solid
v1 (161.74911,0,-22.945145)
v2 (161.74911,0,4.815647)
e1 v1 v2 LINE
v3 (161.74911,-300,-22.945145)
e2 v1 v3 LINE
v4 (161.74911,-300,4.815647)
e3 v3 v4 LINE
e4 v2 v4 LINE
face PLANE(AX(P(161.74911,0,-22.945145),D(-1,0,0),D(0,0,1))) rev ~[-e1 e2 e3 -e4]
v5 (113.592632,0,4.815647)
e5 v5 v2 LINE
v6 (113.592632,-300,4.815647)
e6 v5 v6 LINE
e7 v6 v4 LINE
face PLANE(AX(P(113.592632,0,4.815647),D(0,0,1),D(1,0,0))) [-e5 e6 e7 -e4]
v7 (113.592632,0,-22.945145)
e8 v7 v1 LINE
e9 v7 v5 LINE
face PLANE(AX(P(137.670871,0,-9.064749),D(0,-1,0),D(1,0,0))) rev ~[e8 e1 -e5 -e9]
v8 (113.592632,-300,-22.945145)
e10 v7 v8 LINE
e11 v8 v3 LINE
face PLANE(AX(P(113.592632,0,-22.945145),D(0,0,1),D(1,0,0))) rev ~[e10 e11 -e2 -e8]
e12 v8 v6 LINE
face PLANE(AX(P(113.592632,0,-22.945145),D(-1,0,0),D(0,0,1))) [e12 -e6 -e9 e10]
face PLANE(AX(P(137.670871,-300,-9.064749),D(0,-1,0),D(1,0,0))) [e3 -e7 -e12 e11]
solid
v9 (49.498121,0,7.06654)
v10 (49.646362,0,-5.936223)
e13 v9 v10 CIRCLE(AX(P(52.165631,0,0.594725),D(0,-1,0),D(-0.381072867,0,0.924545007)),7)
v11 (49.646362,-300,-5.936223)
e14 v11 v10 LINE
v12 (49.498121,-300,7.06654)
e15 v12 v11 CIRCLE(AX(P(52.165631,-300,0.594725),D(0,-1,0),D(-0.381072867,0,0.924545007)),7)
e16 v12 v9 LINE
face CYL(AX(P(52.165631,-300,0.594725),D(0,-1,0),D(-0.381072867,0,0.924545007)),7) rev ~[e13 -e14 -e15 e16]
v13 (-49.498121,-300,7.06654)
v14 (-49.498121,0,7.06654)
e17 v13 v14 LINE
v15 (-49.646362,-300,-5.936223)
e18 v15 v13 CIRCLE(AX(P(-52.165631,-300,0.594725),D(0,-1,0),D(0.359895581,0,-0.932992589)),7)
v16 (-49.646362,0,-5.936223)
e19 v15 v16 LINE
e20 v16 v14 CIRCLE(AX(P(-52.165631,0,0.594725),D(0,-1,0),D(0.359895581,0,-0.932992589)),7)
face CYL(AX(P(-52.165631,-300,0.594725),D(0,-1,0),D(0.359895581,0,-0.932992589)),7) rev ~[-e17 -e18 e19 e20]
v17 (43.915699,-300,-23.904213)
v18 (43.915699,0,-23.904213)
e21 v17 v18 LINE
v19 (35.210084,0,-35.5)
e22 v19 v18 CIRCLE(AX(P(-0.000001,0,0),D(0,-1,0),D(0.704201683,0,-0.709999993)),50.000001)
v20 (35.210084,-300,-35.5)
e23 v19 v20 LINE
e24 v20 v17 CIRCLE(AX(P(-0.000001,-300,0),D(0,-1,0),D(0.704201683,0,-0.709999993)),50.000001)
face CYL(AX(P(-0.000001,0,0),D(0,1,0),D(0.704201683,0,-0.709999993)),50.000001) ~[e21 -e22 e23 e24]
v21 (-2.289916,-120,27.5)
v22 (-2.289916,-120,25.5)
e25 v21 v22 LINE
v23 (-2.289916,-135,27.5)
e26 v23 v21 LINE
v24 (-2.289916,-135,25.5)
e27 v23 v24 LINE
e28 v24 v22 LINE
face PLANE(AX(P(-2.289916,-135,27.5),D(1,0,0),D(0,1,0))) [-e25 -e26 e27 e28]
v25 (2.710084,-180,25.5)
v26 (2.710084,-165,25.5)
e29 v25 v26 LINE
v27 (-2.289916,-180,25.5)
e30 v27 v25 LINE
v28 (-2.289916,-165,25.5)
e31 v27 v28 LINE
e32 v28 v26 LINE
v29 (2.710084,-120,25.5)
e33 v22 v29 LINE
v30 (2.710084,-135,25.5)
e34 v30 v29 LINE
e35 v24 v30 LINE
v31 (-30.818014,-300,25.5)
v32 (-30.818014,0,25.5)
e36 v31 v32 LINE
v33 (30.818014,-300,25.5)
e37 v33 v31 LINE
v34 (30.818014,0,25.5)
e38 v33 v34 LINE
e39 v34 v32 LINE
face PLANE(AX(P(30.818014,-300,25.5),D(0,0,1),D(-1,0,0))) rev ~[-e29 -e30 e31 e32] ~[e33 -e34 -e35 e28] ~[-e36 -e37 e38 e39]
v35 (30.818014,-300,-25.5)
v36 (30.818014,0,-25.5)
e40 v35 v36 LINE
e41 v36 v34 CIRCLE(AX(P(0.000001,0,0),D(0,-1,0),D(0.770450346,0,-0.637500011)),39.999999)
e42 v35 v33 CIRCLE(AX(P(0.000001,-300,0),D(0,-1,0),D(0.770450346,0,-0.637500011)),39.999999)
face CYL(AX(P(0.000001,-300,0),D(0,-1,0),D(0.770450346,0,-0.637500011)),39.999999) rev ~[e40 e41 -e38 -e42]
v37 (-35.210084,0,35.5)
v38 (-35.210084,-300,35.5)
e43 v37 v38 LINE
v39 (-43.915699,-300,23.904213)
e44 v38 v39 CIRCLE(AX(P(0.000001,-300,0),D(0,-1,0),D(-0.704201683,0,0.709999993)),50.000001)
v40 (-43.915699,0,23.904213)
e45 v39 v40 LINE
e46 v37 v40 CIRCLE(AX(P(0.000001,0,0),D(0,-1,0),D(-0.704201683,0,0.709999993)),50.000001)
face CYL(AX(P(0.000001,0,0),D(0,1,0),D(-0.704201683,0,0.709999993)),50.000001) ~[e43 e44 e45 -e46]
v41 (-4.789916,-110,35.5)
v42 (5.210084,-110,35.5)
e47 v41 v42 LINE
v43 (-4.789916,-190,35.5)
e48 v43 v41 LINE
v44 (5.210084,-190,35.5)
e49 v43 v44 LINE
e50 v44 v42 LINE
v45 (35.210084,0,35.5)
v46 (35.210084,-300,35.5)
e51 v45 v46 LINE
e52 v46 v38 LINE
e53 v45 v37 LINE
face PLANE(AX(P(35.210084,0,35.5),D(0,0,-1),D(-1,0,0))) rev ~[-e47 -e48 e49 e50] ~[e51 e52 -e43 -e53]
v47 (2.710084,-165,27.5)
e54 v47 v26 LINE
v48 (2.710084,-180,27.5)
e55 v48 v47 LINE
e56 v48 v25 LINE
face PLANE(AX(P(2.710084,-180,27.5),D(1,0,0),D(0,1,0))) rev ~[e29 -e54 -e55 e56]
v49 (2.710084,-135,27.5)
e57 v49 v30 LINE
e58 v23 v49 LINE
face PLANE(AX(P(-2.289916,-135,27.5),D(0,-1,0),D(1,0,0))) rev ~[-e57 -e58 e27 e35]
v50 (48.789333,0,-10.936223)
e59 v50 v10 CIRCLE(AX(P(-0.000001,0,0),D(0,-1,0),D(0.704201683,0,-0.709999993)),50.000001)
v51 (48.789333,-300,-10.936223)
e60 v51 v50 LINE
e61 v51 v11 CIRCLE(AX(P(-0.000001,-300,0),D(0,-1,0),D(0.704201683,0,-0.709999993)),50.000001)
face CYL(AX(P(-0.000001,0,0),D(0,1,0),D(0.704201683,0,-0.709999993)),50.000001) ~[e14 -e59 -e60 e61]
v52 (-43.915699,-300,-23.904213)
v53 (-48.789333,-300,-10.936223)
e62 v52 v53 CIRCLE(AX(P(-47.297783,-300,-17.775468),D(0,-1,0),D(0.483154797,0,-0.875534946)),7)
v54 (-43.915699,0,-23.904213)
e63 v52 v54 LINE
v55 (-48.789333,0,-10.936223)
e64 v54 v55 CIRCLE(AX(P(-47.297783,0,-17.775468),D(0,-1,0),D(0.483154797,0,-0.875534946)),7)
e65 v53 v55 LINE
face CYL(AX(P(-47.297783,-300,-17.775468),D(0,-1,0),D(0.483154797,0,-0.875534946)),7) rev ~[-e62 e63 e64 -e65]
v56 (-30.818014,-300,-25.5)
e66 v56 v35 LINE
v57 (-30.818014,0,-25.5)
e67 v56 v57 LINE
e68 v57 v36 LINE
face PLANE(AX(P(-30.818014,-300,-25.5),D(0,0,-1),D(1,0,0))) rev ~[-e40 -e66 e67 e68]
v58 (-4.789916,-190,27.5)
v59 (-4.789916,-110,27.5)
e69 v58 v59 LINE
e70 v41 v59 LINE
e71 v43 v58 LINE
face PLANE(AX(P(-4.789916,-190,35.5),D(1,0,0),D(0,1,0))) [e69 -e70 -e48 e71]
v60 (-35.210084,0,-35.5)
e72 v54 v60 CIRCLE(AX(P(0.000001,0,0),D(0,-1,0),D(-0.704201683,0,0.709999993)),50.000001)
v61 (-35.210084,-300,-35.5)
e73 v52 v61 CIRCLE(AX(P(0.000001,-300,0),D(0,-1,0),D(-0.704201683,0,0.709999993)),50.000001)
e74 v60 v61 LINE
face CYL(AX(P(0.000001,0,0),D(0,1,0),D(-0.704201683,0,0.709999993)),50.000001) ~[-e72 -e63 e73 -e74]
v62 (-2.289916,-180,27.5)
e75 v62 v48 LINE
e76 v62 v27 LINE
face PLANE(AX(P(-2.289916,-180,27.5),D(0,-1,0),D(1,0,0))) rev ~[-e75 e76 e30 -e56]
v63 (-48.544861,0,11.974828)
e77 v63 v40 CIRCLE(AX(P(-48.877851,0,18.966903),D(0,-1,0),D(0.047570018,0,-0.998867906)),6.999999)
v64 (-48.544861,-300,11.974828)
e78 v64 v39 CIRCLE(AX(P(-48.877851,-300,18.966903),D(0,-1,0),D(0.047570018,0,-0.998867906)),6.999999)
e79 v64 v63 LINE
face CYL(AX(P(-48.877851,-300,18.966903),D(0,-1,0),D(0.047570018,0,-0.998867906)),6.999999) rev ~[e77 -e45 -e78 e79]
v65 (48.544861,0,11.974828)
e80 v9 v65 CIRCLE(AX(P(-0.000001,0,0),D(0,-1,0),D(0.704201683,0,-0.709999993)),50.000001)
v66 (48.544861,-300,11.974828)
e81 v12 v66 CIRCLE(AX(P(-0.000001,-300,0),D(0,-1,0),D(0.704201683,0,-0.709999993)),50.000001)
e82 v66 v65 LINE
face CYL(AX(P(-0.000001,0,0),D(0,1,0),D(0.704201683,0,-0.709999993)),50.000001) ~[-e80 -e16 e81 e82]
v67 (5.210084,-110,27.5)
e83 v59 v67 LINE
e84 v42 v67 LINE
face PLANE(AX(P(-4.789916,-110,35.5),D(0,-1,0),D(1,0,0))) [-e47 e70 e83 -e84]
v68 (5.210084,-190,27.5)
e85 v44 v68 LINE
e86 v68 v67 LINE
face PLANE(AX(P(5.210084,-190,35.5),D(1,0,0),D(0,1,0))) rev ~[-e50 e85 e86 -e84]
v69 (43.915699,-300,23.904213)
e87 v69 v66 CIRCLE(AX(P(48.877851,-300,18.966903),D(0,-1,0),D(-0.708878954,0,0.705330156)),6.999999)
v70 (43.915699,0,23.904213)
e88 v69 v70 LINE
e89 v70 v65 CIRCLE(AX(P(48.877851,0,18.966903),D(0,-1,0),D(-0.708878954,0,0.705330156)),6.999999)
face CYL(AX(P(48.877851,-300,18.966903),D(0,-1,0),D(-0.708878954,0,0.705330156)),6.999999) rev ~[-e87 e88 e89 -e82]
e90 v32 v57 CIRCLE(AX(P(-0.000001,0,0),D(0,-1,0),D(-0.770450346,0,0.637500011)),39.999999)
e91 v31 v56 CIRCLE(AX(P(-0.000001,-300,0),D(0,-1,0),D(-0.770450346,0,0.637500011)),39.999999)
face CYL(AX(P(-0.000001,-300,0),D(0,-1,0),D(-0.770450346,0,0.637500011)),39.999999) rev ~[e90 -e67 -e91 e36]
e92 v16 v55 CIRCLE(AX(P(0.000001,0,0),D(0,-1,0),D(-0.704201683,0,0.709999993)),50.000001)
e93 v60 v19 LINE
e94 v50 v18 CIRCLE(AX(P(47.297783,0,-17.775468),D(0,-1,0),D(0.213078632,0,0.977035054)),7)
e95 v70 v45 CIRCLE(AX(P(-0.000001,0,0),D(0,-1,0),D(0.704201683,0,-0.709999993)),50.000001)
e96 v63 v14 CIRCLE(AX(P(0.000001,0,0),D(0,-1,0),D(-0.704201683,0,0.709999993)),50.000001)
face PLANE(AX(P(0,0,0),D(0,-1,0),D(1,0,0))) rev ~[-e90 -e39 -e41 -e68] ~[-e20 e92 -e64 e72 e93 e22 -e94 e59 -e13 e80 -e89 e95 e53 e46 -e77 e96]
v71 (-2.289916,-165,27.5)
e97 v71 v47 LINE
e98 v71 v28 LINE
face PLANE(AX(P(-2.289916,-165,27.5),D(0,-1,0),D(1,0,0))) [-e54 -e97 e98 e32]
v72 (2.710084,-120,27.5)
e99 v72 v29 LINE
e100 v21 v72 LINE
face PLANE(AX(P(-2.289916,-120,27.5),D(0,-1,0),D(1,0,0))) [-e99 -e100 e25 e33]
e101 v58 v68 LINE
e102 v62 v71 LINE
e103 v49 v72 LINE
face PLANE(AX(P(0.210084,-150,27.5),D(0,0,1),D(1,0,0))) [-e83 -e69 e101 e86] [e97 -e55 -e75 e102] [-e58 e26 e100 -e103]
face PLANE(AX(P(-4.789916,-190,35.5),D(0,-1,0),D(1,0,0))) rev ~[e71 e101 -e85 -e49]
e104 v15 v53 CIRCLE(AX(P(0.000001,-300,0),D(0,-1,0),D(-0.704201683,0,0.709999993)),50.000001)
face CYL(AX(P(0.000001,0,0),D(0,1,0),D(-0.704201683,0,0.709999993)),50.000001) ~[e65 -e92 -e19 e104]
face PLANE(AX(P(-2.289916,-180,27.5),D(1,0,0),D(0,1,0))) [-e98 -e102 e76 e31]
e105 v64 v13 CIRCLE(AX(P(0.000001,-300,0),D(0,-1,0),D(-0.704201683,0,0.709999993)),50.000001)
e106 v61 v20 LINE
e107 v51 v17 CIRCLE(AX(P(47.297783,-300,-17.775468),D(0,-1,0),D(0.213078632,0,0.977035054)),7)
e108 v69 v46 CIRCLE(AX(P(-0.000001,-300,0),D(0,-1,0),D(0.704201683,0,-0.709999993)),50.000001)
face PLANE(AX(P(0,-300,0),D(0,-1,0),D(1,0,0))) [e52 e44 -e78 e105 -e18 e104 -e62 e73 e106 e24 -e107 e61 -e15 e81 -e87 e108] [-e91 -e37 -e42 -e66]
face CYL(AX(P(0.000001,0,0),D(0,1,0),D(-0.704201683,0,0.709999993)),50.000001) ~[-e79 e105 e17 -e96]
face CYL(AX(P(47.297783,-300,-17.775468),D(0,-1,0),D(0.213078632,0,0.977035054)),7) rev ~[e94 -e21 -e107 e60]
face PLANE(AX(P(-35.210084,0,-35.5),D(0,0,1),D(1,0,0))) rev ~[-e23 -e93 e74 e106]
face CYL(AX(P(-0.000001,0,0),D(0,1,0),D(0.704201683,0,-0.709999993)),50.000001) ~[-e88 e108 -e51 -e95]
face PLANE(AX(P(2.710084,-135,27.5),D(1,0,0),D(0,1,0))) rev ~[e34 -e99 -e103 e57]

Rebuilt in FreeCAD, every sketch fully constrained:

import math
import FreeCAD as App
import Part
import Sketcher
Q = App.Units.Quantity

doc = App.newDocument("Part")
body = doc.addObject("PartDesign::Body", "Body")
body.AllowCompound = True

sketch1 = body.newObject("Sketcher::SketchObject", "Sketch")
sketch1.AttachmentSupport = (doc.getObject("XZ_Plane"), [""])
sketch1.MapMode = "FlatFace"
sketch1.addGeometry([
    Part.LineSegment(App.Vector(35.210084, 35.5, 0), App.Vector(-35.210084, 35.5, 0)),
    Part.ArcOfCircle(Part.Circle(App.Vector(0.000001, 0, 0), App.Vector(0, 0, 1), 50.000001), math.radians(134.765085), math.radians(225.234915)),
    Part.LineSegment(App.Vector(-35.210084, -35.5, 0), App.Vector(35.210084, -35.5, 0)),
    Part.ArcOfCircle(Part.Circle(App.Vector(-0.000001, 0, 0), App.Vector(0, 0, 1), 50.000001), math.radians(-45.234915), math.radians(45.234915)),
    Part.LineSegment(App.Vector(113.592632, 4.815647, 0), App.Vector(113.592632, -22.945145, 0)),
    Part.LineSegment(App.Vector(113.592632, -22.945145, 0), App.Vector(161.74911, -22.945145, 0)),
    Part.LineSegment(App.Vector(161.74911, -22.945145, 0), App.Vector(161.74911, 4.815647, 0)),
    Part.LineSegment(App.Vector(161.74911, 4.815647, 0), App.Vector(113.592632, 4.815647, 0)),
], False)
sketch1.addConstraint([
    Sketcher.Constraint("Coincident", 0, 2, 1, 1),
    Sketcher.Constraint("Coincident", 1, 2, 2, 1),
    Sketcher.Constraint("Coincident", 2, 2, 3, 1),
    Sketcher.Constraint("Coincident", 3, 2, 0, 1),
    Sketcher.Constraint("Coincident", 4, 2, 5, 1),
    Sketcher.Constraint("Coincident", 5, 2, 6, 1),
    Sketcher.Constraint("Coincident", 6, 2, 7, 1),
    Sketcher.Constraint("Coincident", 7, 2, 4, 1),
    Sketcher.Constraint("Horizontal", 0),
    Sketcher.Constraint("Horizontal", 2),
    Sketcher.Constraint("Vertical", 4),
    Sketcher.Constraint("Horizontal", 5),
    Sketcher.Constraint("Vertical", 6),
    Sketcher.Constraint("Horizontal", 7),
    Sketcher.Constraint("Coincident", 1, 3, -1, 1),
    Sketcher.Constraint("Coincident", 3, 3, -1, 1),
    Sketcher.Constraint("Equal", 1, 3),
    Sketcher.Constraint("Vertical", 0, 2, 1, 2),
    Sketcher.Constraint("Radius", 1, Q("50.000001 mm")),
    Sketcher.Constraint("DistanceY", 1, 2, 0, 2, Q("71 mm")),
    Sketcher.Constraint("DistanceX", 5, 1, 5, 2, Q("48.156478 mm")),
    Sketcher.Constraint("DistanceY", 4, 2, 4, 1, Q("27.760793 mm")),
    Sketcher.Constraint("DistanceX", -1, 1, 4, 2, Q("113.592632 mm")),
    Sketcher.Constraint("DistanceY", 4, 2, -1, 1, Q("22.945145 mm")),
])
pad1 = body.newObject("PartDesign::Pad", "Pad")
pad1.Profile = sketch1
pad1.Length = 300

sketch2 = body.newObject("Sketcher::SketchObject", "Sketch001")
sketch2.AttachmentSupport = (doc.getObject("XZ_Plane"), [""])
sketch2.MapMode = "FlatFace"
sketch2.AttachmentOffset = App.Placement(App.Vector(0, 0, 300), App.Rotation())
sketch2.addGeometry([
    Part.LineSegment(App.Vector(30.818014, 25.5, 0), App.Vector(-30.818014, 25.5, 0)),
    Part.ArcOfCircle(Part.Circle(App.Vector(-0.000001, 0, 0), App.Vector(0, 0, 1), 39.999999), math.radians(140.394347), math.radians(219.605653)),
    Part.LineSegment(App.Vector(-30.818014, -25.5, 0), App.Vector(30.818014, -25.5, 0)),
    Part.ArcOfCircle(Part.Circle(App.Vector(0.000001, 0, 0), App.Vector(0, 0, 1), 39.999999), math.radians(-39.605653), math.radians(39.605653)),
], False)
sketch2.addConstraint([
    Sketcher.Constraint("Coincident", 0, 2, 1, 1),
    Sketcher.Constraint("Coincident", 1, 2, 2, 1),
    Sketcher.Constraint("Coincident", 2, 2, 3, 1),
    Sketcher.Constraint("Coincident", 3, 2, 0, 1),
    Sketcher.Constraint("Horizontal", 0),
    Sketcher.Constraint("Horizontal", 2),
    Sketcher.Constraint("Coincident", 1, 3, -1, 1),
    Sketcher.Constraint("Coincident", 3, 3, -1, 1),
    Sketcher.Constraint("Equal", 1, 3),
    Sketcher.Constraint("Vertical", 0, 2, 1, 2),
    Sketcher.Constraint("Radius", 1, Q("39.999999 mm")),
    Sketcher.Constraint("DistanceY", 1, 2, 0, 2, Q("51 mm")),
])
pocket1 = body.newObject("PartDesign::Pocket", "Pocket")
pocket1.Profile = sketch2
pocket1.Length = 300

sketch3 = body.newObject("Sketcher::SketchObject", "Sketch002")
sketch3.AttachmentSupport = (doc.getObject("XY_Plane"), [""])
sketch3.MapMode = "FlatFace"
sketch3.AttachmentOffset = App.Placement(App.Vector(0, 0, 35.5), App.Rotation())
sketch3.addGeometry([
    Part.LineSegment(App.Vector(-4.789916, -110, 0), App.Vector(-4.789916, -190, 0)),
    Part.LineSegment(App.Vector(-4.789916, -190, 0), App.Vector(5.210084, -190, 0)),
    Part.LineSegment(App.Vector(5.210084, -190, 0), App.Vector(5.210084, -110, 0)),
    Part.LineSegment(App.Vector(5.210084, -110, 0), App.Vector(-4.789916, -110, 0)),
], False)
sketch3.addConstraint([
    Sketcher.Constraint("Coincident", 0, 2, 1, 1),
    Sketcher.Constraint("Coincident", 1, 2, 2, 1),
    Sketcher.Constraint("Coincident", 2, 2, 3, 1),
    Sketcher.Constraint("Coincident", 3, 2, 0, 1),
    Sketcher.Constraint("Vertical", 0),
    Sketcher.Constraint("Horizontal", 1),
    Sketcher.Constraint("Vertical", 2),
    Sketcher.Constraint("Horizontal", 3),
    Sketcher.Constraint("DistanceX", 1, 1, 1, 2, Q("10 mm")),
    Sketcher.Constraint("DistanceY", 0, 2, 0, 1, Q("80 mm")),
    Sketcher.Constraint("DistanceY", 0, 2, -1, 1, Q("190 mm")),
    Sketcher.Constraint("DistanceX", 0, 2, -1, 1, Q("4.789916 mm")),
])
pocket2 = body.newObject("PartDesign::Pocket", "Pocket001")
pocket2.Profile = sketch3
pocket2.Length = 8

sketch4 = body.newObject("Sketcher::SketchObject", "Sketch003")
sketch4.AttachmentSupport = (doc.getObject("XY_Plane"), [""])
sketch4.MapMode = "FlatFace"
sketch4.AttachmentOffset = App.Placement(App.Vector(0, 0, 27.5), App.Rotation())
sketch4.addGeometry([
    Part.LineSegment(App.Vector(-2.289916, -120, 0), App.Vector(-2.289916, -135, 0)),
    Part.LineSegment(App.Vector(-2.289916, -135, 0), App.Vector(2.710084, -135, 0)),
    Part.LineSegment(App.Vector(2.710084, -135, 0), App.Vector(2.710084, -120, 0)),
    Part.LineSegment(App.Vector(2.710084, -120, 0), App.Vector(-2.289916, -120, 0)),
    Part.LineSegment(App.Vector(-2.289916, -165, 0), App.Vector(-2.289916, -180, 0)),
    Part.LineSegment(App.Vector(-2.289916, -180, 0), App.Vector(2.710084, -180, 0)),
    Part.LineSegment(App.Vector(2.710084, -180, 0), App.Vector(2.710084, -165, 0)),
    Part.LineSegment(App.Vector(2.710084, -165, 0), App.Vector(-2.289916, -165, 0)),
], False)
sketch4.addConstraint([
    Sketcher.Constraint("Coincident", 0, 2, 1, 1),
    Sketcher.Constraint("Coincident", 1, 2, 2, 1),
    Sketcher.Constraint("Coincident", 2, 2, 3, 1),
    Sketcher.Constraint("Coincident", 3, 2, 0, 1),
    Sketcher.Constraint("Coincident", 4, 2, 5, 1),
    Sketcher.Constraint("Coincident", 5, 2, 6, 1),
    Sketcher.Constraint("Coincident", 6, 2, 7, 1),
    Sketcher.Constraint("Coincident", 7, 2, 4, 1),
    Sketcher.Constraint("Vertical", 0),
    Sketcher.Constraint("Horizontal", 1),
    Sketcher.Constraint("Vertical", 2),
    Sketcher.Constraint("Horizontal", 3),
    Sketcher.Constraint("Vertical", 4),
    Sketcher.Constraint("Horizontal", 5),
    Sketcher.Constraint("Vertical", 6),
    Sketcher.Constraint("Horizontal", 7),
    Sketcher.Constraint("Vertical", 3, 2, 4, 2),
    Sketcher.Constraint("Vertical", 2, 2, 5, 2),
    Sketcher.Constraint("Equal", 2, 4),
    Sketcher.Constraint("DistanceX", 1, 1, 1, 2, Q("5 mm")),
    Sketcher.Constraint("DistanceY", 0, 2, 0, 1, Q("15 mm")),
    Sketcher.Constraint("DistanceY", 0, 2, -1, 1, Q("135 mm")),
    Sketcher.Constraint("DistanceY", 4, 2, -1, 1, Q("180 mm")),
    Sketcher.Constraint("DistanceX", 0, 2, -1, 1, Q("2.289916 mm")),
])
pocket3 = body.newObject("PartDesign::Pocket", "Pocket002")
pocket3.Profile = sketch4
pocket3.Length = 5

sketch5 = body.newObject("Sketcher::SketchObject", "Sketch004")
sketch5.AttachmentSupport = (doc.getObject("XZ_Plane"), [""])
sketch5.MapMode = "FlatFace"
sketch5.AttachmentOffset = App.Placement(App.Vector(0, 0, 300), App.Rotation())
sketch5.addGeometry([
    Part.ArcOfCircle(Part.Circle(App.Vector(28.981521, 11.246191, 0), App.Vector(0, 0, 1), 19.576905), math.radians(2.132996), math.radians(40.284191)),
    Part.ArcOfCircle(Part.Circle(App.Vector(48.877851, 18.966903, 0), App.Vector(0, 0, 1), 6.999999), math.radians(135.143777), math.radians(267.27341)),
    Part.ArcOfCircle(Part.Circle(App.Vector(43.724249, 0.498487, 0), App.Vector(0, 0, 1), 8.745108), math.radians(-47.375436), math.radians(48.681807)),
    Part.ArcOfCircle(Part.Circle(App.Vector(52.165631, 0.594725, 0), App.Vector(0, 0, 1), 7), math.radians(112.400154), math.radians(248.906217)),
    Part.ArcOfCircle(Part.Circle(App.Vector(41.240912, -15.499174, 0), App.Vector(0, 0, 1), 8.820384), math.radians(-72.347054), math.radians(31.152574)),
    Part.ArcOfCircle(Part.Circle(App.Vector(47.297783, -17.775468, 0), App.Vector(0, 0, 1), 7), math.radians(77.697171), math.radians(241.10835)),
    Part.ArcOfCircle(Part.Circle(App.Vector(-48.877851, 18.966903, 0), App.Vector(0, 0, 1), 6.999999), math.radians(-87.27341), math.radians(44.856223)),
    Part.ArcOfCircle(Part.Circle(App.Vector(-28.981521, 11.246191, 0), App.Vector(0, 0, 1), 19.576905), math.radians(139.715809), math.radians(177.867004)),
    Part.ArcOfCircle(Part.Circle(App.Vector(-52.165631, 0.594725, 0), App.Vector(0, 0, 1), 7), math.radians(-68.906217), math.radians(67.599846)),
    Part.ArcOfCircle(Part.Circle(App.Vector(-43.724249, 0.498487, 0), App.Vector(0, 0, 1), 8.745108), math.radians(131.318193), math.radians(227.375436)),
    Part.ArcOfCircle(Part.Circle(App.Vector(-47.297783, -17.775468, 0), App.Vector(0, 0, 1), 7), math.radians(-61.10835), math.radians(102.302829)),
    Part.ArcOfCircle(Part.Circle(App.Vector(-41.240912, -15.499174, 0), App.Vector(0, 0, 1), 8.820384), math.radians(148.847426), math.radians(252.347054)),
], False)
sketch5.addConstraint([
    Sketcher.Constraint("Coincident", 0, 1, 1, 2),
    Sketcher.Constraint("Coincident", 1, 1, 0, 2),
    Sketcher.Constraint("Coincident", 2, 1, 3, 2),
    Sketcher.Constraint("Coincident", 3, 1, 2, 2),
    Sketcher.Constraint("Coincident", 4, 1, 5, 2),
    Sketcher.Constraint("Coincident", 5, 1, 4, 2),
    Sketcher.Constraint("Coincident", 6, 1, 7, 2),
    Sketcher.Constraint("Coincident", 7, 1, 6, 2),
    Sketcher.Constraint("Coincident", 8, 1, 9, 2),
    Sketcher.Constraint("Coincident", 9, 1, 8, 2),
    Sketcher.Constraint("Coincident", 10, 1, 11, 2),
    Sketcher.Constraint("Coincident", 11, 1, 10, 2),
    Sketcher.Constraint("Equal", 1, 3),
    Sketcher.Constraint("Equal", 3, 5),
    Sketcher.Constraint("Equal", 5, 6),
    Sketcher.Constraint("Equal", 0, 7),
    Sketcher.Constraint("Equal", 6, 8),
    Sketcher.Constraint("Equal", 2, 9),
    Sketcher.Constraint("Equal", 8, 10),
    Sketcher.Constraint("Equal", 4, 11),
    Sketcher.Constraint("Symmetric", 4, 1, 7, 1, -1, 1),
    Sketcher.Constraint("Symmetric", 1, 1, 10, 1, -1, 1),
    Sketcher.Constraint("Symmetric", 1, 3, 6, 3, -2),
    Sketcher.Constraint("Symmetric", 0, 3, 7, 3, -2),
    Sketcher.Constraint("Symmetric", 3, 3, 8, 3, -2),
    Sketcher.Constraint("Symmetric", 2, 3, 9, 3, -2),
    Sketcher.Constraint("Symmetric", 5, 1, 11, 1, -2),
    Sketcher.Constraint("Radius", 1, Q("6.999999 mm")),
    Sketcher.Constraint("DistanceY", 5, 1, 2, 1, Q("5 mm")),
    Sketcher.Constraint("Radius", 0, Q("19.576905 mm")),
    Sketcher.Constraint("Radius", 2, Q("8.745108 mm")),
    Sketcher.Constraint("Radius", 4, Q("8.820384 mm")),
    Sketcher.Constraint("DistanceY", 4, 3, 0, 1, Q("27.474002 mm")),
    Sketcher.Constraint("DistanceX", -1, 1, 1, 1, Q("43.915699 mm")),
    Sketcher.Constraint("DistanceX", 2, 3, 1, 3, Q("5.153602 mm")),
    Sketcher.Constraint("DistanceY", 4, 3, 3, 3, Q("16.093899 mm")),
    Sketcher.Constraint("DistanceX", 6, 3, 2, 3, Q("92.6021 mm")),
    Sketcher.Constraint("DistanceX", 0, 1, 2, 1, Q("1.101501 mm")),
    Sketcher.Constraint("DistanceY", 4, 1, 2, 3, Q("24.4027 mm")),
    Sketcher.Constraint("DistanceX", 5, 1, 3, 3, Q("3.376298 mm")),
    Sketcher.Constraint("DistanceX", -1, 1, 0, 3, Q("28.981521 mm")),
])
pocket4 = body.newObject("PartDesign::Pocket", "Pocket003")
pocket4.Profile = sketch5
pocket4.Length = 300

doc.recompute()
